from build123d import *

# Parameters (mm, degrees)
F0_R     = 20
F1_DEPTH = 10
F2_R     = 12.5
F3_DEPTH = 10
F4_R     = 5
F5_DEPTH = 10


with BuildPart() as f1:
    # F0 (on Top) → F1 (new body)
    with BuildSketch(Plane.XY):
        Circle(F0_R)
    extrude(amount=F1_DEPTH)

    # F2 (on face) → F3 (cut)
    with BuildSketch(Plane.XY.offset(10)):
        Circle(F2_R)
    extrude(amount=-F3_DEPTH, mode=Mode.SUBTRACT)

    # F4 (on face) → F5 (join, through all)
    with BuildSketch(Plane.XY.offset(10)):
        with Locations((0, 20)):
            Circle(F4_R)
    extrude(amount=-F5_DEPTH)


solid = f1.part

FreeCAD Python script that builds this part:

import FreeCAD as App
import Part
import Sketcher

V = App.Vector

doc = App.newDocument("Part")
body = doc.addObject("PartDesign::Body", "Body")

# Sketch on XY plane
sketch1 = body.newObject("Sketcher::SketchObject", "Sketch")
sketch1.AttachmentSupport = (doc.getObject("XY_Plane"), [""])
sketch1.MapMode = "FlatFace"
sketch1.addGeometry(Part.Circle(V(0, 0, 0), V(0, 0, 1), 20), False)
sketch1.addConstraint([
    Sketcher.Constraint("Coincident", 0, 3, -1, 1),
    Sketcher.Constraint("Diameter", 0, 40.0),
])
pad1 = body.newObject("PartDesign::Pad", "Pad")
pad1.Profile = sketch1
pad1.Length = 10

# Sketch on XY plane
sketch2 = body.newObject("Sketcher::SketchObject", "Sketch001")
sketch2.AttachmentSupport = (doc.getObject("XY_Plane"), [""])
sketch2.MapMode = "FlatFace"
sketch2.AttachmentOffset = App.Placement(V(0, 0, 10), App.Rotation())
sketch2.addGeometry(Part.Circle(V(0, 0, 0), V(0, 0, 1), 12), False)
sketch2.addConstraint([
    Sketcher.Constraint("Coincident", 0, 3, -1, 1),
    Sketcher.Constraint("Diameter", 0, 25.0),
])
pocket1 = body.newObject("PartDesign::Pocket", "Pocket")
pocket1.Profile = sketch2
pocket1.Length = 10

# Sketch on XY plane
sketch3 = body.newObject("Sketcher::SketchObject", "Sketch002")
sketch3.AttachmentSupport = (doc.getObject("XY_Plane"), [""])
sketch3.MapMode = "FlatFace"
sketch3.AttachmentOffset = App.Placement(V(0, 0, 10), App.Rotation())
sketch3.addGeometry(Part.Circle(V(0, 20, 0), V(0, 0, 1), 5), False)
sketch3.addConstraint([
    Sketcher.Constraint("PointOnObject", 0, 3, -2),
    Sketcher.Constraint("Diameter", 0, 10.0),
    Sketcher.Constraint("DistanceY", -1, 1, 0, 3, 20.0),
])
pad2 = body.newObject("PartDesign::Pad", "Pad001")
pad2.Profile = sketch3
pad2.Type = "UpToLast"
pad2.Reversed = True

doc.recompute()
